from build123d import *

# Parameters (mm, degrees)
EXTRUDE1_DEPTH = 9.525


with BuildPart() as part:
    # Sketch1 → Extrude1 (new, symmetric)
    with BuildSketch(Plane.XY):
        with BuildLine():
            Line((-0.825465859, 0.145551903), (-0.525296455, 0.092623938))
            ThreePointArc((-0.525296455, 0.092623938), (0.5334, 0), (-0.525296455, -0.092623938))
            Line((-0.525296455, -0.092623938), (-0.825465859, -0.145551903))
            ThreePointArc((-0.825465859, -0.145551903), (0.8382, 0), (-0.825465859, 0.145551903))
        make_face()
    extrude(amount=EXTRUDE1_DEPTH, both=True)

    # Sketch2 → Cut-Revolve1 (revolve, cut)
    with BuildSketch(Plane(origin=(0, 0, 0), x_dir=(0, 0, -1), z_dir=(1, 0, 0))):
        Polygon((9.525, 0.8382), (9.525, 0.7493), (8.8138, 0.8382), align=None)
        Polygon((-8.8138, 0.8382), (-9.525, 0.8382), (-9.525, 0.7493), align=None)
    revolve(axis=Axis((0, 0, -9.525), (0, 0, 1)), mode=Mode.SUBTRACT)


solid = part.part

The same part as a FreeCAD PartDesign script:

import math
import FreeCAD as App
import Part
import Sketcher

V = App.Vector
Q = App.Units.Quantity

doc = App.newDocument("Part")
params = doc.addObject("Spreadsheet::Sheet", "Params")
for row, (alias, value) in enumerate([
    ("sketch1_radius", "0.021 in"),
    ("sketch1_radius2", "0.033 in"),
    ("pad1_length", "0.75 in"),
    ("sketch2_height", "0.028 in"),
    ("groove_angle", "360 deg"),
], start=1):
    params.set(f"A{row}", alias)
    params.set(f"B{row}", "=" + value)
    params.setAlias(f"B{row}", alias)

body = doc.addObject("PartDesign::Body", "Body")

# Sketch on XY plane
sketch1 = body.newObject("Sketcher::SketchObject", "Sketch")
sketch1.AttachmentSupport = (doc.getObject("XY_Plane"), [""])
sketch1.MapMode = "FlatFace"
sketch1.addGeometry([
    Part.LineSegment(V(-0.83, 0.15, 0), V(-0.53, 0.09, 0)),
    Part.ArcOfCircle(Part.Circle(V(0, 0, 0), V(0, 0, 1), 0.53), math.radians(-170), math.radians(170)),
    Part.LineSegment(V(-0.53, -0.09, 0), V(-0.83, -0.15, 0)),
    Part.ArcOfCircle(Part.Circle(V(0, 0, 0), V(0, 0, 1), 0.84), math.radians(-170), math.radians(170)),
], False)
sketch1.addConstraint([
    Sketcher.Constraint("Coincident", 0, 2, 1, 2),
    Sketcher.Constraint("Coincident", 1, 1, 2, 1),
    Sketcher.Constraint("Coincident", 2, 2, 3, 1),
    Sketcher.Constraint("Coincident", 3, 2, 0, 1),
    Sketcher.Constraint("Coincident", 1, 3, -1, 1),
    Sketcher.Constraint("Coincident", 3, 3, -1, 1),
    Sketcher.Constraint("Vertical", 0, 2, 1, 1),
    Sketcher.Constraint("Vertical", 2, 2, 3, 2),
    Sketcher.Constraint("Angle", 0, Q("-10 deg")),
    Sketcher.Constraint("Radius", 1, Q("0.021 in")),
    Sketcher.Constraint("Radius", 3, Q("0.033 in")),
    Sketcher.Constraint("DistanceY", 2, 2, -1, 1, Q("0.145552 mm")),
])
sketch1.setExpression("Constraints[9]", "Params.sketch1_radius")
sketch1.setExpression("Constraints[10]", "Params.sketch1_radius2")
pad1 = body.newObject("PartDesign::Pad", "Pad")
pad1.Profile = sketch1
pad1.setExpression("Length", "Params.pad1_length")
pad1.Midplane = True

# Sketch on YZ plane
sketch2 = body.newObject("Sketcher::SketchObject", "Sketch001")
sketch2.AttachmentSupport = (doc.getObject("YZ_Plane"), [""])
sketch2.MapMode = "FlatFace"
sketch2.addGeometry([
    Part.LineSegment(V(0.75, -9.53, 0), V(0.84, -9.53, 0)),  # 0
    Part.LineSegment(V(0.84, -9.53, 0), V(0.84, -8.81, 0)),  # 1
    Part.LineSegment(V(0.84, -8.81, 0), V(0.75, -9.53, 0)),  # 2
    Part.LineSegment(V(0.84, 8.81, 0), V(0.84, 9.53, 0)),  # 3
    Part.LineSegment(V(0.84, 9.53, 0), V(0.75, 9.53, 0)),  # 4
    Part.LineSegment(V(0.75, 9.53, 0), V(0.84, 8.81, 0)),  # 5
], False)
sketch2.addConstraint([
    Sketcher.Constraint("Coincident", 0, 2, 1, 1),
    Sketcher.Constraint("Coincident", 1, 2, 2, 1),
    Sketcher.Constraint("Coincident", 2, 2, 0, 1),
    Sketcher.Constraint("Coincident", 3, 2, 4, 1),
    Sketcher.Constraint("Coincident", 4, 2, 5, 1),
    Sketcher.Constraint("Coincident", 5, 2, 3, 1),
    Sketcher.Constraint("Horizontal", 0),
    Sketcher.Constraint("Vertical", 1),
    Sketcher.Constraint("Vertical", 3),
    Sketcher.Constraint("Horizontal", 4),
    Sketcher.Constraint("Symmetric", 0, 2, 3, 2, -1),
    Sketcher.Constraint("Vertical", 2, 2, 4, 2),
    Sketcher.Constraint("Equal", 1, 3),
    Sketcher.Constraint("DistanceY", 1, 1, 1, 2, Q("0.028 in")),
    Sketcher.Constraint("DistanceY", 0, 2, 3, 2, Q("0.75 in")),
    Sketcher.Constraint("DistanceX", 0, 1, 0, 2, Q("0.0035 in")),
    Sketcher.Constraint("DistanceX", -1, 1, 0, 2, Q("0.033 in")),
])
sketch2.setExpression("Constraints[13]", "Params.sketch2_height")
groove = body.newObject("PartDesign::Groove", "Groove")
groove.Profile = sketch2
groove.ReferenceAxis = (sketch2, ["V_Axis"])
groove.setExpression("Angle", "Params.groove_angle")

doc.recompute()
